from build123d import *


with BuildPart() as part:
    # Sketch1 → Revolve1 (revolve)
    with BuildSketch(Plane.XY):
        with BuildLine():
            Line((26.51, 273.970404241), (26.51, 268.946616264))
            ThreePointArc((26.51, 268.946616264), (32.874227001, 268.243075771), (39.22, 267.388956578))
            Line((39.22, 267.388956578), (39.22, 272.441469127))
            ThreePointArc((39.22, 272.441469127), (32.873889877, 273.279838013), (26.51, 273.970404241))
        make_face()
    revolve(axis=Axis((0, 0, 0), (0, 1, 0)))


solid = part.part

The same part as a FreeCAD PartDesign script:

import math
import FreeCAD as App
import Part
import Sketcher
from FreeCAD import Vector

doc = App.newDocument("Part")
body = doc.addObject("PartDesign::Body", "Body")

# Sketch on XY plane
sketch1 = doc.addObject("Sketcher::SketchObject", "Sketch")
body.addObject(sketch1)
sketch1.AttachmentSupport = (doc.XY_Plane, [""])
sketch1.MapMode = "FlatFace"
sketch1.addGeometry(Part.LineSegment(Vector(27, 274, 0), Vector(27, 269, 0)), False)
sketch1.addGeometry(Part.ArcOfCircle(Part.Circle(Vector(0, 0, 0), Vector(0, 0, 1), 270), math.radians(81.66), math.radians(84.37)), False)
sketch1.addGeometry(Part.LineSegment(Vector(39, 267, 0), Vector(39, 272, 0)), False)
sketch1.addGeometry(Part.ArcOfCircle(Part.Circle(Vector(0, 0, 0), Vector(0, 0, 1), 275), math.radians(81.81), math.radians(84.47)), False)
sketch1.addConstraint(Sketcher.Constraint("Coincident", 0, 2, 1, 2))
sketch1.addConstraint(Sketcher.Constraint("Coincident", 1, 1, 2, 1))
sketch1.addConstraint(Sketcher.Constraint("Coincident", 2, 2, 3, 1))
sketch1.addConstraint(Sketcher.Constraint("Coincident", 3, 2, 0, 1))
sketch1.addConstraint(Sketcher.Constraint("Vertical", 0))
sketch1.addConstraint(Sketcher.Constraint("Vertical", 2))
sketch1.addConstraint(Sketcher.Constraint("Coincident", 1, 3, -1, 1))
sketch1.addConstraint(Sketcher.Constraint("Coincident", 3, 3, -1, 1))
sketch1.addConstraint(Sketcher.Constraint("Radius", 1, 270.249999))
sketch1.addConstraint(Sketcher.Constraint("Radius", 3, 275.25))
sketch1.addConstraint(Sketcher.Constraint("DistanceX", -1, 1, 0, 2, 26.51))
sketch1.addConstraint(Sketcher.Constraint("DistanceX", -1, 1, 1, 1, 39.22))
revolution = doc.addObject("PartDesign::Revolution", "Revolution")
body.addObject(revolution)
revolution.Profile = sketch1
revolution.ReferenceAxis = (sketch1, ["V_Axis"])
revolution.Angle = 360

doc.recompute()
